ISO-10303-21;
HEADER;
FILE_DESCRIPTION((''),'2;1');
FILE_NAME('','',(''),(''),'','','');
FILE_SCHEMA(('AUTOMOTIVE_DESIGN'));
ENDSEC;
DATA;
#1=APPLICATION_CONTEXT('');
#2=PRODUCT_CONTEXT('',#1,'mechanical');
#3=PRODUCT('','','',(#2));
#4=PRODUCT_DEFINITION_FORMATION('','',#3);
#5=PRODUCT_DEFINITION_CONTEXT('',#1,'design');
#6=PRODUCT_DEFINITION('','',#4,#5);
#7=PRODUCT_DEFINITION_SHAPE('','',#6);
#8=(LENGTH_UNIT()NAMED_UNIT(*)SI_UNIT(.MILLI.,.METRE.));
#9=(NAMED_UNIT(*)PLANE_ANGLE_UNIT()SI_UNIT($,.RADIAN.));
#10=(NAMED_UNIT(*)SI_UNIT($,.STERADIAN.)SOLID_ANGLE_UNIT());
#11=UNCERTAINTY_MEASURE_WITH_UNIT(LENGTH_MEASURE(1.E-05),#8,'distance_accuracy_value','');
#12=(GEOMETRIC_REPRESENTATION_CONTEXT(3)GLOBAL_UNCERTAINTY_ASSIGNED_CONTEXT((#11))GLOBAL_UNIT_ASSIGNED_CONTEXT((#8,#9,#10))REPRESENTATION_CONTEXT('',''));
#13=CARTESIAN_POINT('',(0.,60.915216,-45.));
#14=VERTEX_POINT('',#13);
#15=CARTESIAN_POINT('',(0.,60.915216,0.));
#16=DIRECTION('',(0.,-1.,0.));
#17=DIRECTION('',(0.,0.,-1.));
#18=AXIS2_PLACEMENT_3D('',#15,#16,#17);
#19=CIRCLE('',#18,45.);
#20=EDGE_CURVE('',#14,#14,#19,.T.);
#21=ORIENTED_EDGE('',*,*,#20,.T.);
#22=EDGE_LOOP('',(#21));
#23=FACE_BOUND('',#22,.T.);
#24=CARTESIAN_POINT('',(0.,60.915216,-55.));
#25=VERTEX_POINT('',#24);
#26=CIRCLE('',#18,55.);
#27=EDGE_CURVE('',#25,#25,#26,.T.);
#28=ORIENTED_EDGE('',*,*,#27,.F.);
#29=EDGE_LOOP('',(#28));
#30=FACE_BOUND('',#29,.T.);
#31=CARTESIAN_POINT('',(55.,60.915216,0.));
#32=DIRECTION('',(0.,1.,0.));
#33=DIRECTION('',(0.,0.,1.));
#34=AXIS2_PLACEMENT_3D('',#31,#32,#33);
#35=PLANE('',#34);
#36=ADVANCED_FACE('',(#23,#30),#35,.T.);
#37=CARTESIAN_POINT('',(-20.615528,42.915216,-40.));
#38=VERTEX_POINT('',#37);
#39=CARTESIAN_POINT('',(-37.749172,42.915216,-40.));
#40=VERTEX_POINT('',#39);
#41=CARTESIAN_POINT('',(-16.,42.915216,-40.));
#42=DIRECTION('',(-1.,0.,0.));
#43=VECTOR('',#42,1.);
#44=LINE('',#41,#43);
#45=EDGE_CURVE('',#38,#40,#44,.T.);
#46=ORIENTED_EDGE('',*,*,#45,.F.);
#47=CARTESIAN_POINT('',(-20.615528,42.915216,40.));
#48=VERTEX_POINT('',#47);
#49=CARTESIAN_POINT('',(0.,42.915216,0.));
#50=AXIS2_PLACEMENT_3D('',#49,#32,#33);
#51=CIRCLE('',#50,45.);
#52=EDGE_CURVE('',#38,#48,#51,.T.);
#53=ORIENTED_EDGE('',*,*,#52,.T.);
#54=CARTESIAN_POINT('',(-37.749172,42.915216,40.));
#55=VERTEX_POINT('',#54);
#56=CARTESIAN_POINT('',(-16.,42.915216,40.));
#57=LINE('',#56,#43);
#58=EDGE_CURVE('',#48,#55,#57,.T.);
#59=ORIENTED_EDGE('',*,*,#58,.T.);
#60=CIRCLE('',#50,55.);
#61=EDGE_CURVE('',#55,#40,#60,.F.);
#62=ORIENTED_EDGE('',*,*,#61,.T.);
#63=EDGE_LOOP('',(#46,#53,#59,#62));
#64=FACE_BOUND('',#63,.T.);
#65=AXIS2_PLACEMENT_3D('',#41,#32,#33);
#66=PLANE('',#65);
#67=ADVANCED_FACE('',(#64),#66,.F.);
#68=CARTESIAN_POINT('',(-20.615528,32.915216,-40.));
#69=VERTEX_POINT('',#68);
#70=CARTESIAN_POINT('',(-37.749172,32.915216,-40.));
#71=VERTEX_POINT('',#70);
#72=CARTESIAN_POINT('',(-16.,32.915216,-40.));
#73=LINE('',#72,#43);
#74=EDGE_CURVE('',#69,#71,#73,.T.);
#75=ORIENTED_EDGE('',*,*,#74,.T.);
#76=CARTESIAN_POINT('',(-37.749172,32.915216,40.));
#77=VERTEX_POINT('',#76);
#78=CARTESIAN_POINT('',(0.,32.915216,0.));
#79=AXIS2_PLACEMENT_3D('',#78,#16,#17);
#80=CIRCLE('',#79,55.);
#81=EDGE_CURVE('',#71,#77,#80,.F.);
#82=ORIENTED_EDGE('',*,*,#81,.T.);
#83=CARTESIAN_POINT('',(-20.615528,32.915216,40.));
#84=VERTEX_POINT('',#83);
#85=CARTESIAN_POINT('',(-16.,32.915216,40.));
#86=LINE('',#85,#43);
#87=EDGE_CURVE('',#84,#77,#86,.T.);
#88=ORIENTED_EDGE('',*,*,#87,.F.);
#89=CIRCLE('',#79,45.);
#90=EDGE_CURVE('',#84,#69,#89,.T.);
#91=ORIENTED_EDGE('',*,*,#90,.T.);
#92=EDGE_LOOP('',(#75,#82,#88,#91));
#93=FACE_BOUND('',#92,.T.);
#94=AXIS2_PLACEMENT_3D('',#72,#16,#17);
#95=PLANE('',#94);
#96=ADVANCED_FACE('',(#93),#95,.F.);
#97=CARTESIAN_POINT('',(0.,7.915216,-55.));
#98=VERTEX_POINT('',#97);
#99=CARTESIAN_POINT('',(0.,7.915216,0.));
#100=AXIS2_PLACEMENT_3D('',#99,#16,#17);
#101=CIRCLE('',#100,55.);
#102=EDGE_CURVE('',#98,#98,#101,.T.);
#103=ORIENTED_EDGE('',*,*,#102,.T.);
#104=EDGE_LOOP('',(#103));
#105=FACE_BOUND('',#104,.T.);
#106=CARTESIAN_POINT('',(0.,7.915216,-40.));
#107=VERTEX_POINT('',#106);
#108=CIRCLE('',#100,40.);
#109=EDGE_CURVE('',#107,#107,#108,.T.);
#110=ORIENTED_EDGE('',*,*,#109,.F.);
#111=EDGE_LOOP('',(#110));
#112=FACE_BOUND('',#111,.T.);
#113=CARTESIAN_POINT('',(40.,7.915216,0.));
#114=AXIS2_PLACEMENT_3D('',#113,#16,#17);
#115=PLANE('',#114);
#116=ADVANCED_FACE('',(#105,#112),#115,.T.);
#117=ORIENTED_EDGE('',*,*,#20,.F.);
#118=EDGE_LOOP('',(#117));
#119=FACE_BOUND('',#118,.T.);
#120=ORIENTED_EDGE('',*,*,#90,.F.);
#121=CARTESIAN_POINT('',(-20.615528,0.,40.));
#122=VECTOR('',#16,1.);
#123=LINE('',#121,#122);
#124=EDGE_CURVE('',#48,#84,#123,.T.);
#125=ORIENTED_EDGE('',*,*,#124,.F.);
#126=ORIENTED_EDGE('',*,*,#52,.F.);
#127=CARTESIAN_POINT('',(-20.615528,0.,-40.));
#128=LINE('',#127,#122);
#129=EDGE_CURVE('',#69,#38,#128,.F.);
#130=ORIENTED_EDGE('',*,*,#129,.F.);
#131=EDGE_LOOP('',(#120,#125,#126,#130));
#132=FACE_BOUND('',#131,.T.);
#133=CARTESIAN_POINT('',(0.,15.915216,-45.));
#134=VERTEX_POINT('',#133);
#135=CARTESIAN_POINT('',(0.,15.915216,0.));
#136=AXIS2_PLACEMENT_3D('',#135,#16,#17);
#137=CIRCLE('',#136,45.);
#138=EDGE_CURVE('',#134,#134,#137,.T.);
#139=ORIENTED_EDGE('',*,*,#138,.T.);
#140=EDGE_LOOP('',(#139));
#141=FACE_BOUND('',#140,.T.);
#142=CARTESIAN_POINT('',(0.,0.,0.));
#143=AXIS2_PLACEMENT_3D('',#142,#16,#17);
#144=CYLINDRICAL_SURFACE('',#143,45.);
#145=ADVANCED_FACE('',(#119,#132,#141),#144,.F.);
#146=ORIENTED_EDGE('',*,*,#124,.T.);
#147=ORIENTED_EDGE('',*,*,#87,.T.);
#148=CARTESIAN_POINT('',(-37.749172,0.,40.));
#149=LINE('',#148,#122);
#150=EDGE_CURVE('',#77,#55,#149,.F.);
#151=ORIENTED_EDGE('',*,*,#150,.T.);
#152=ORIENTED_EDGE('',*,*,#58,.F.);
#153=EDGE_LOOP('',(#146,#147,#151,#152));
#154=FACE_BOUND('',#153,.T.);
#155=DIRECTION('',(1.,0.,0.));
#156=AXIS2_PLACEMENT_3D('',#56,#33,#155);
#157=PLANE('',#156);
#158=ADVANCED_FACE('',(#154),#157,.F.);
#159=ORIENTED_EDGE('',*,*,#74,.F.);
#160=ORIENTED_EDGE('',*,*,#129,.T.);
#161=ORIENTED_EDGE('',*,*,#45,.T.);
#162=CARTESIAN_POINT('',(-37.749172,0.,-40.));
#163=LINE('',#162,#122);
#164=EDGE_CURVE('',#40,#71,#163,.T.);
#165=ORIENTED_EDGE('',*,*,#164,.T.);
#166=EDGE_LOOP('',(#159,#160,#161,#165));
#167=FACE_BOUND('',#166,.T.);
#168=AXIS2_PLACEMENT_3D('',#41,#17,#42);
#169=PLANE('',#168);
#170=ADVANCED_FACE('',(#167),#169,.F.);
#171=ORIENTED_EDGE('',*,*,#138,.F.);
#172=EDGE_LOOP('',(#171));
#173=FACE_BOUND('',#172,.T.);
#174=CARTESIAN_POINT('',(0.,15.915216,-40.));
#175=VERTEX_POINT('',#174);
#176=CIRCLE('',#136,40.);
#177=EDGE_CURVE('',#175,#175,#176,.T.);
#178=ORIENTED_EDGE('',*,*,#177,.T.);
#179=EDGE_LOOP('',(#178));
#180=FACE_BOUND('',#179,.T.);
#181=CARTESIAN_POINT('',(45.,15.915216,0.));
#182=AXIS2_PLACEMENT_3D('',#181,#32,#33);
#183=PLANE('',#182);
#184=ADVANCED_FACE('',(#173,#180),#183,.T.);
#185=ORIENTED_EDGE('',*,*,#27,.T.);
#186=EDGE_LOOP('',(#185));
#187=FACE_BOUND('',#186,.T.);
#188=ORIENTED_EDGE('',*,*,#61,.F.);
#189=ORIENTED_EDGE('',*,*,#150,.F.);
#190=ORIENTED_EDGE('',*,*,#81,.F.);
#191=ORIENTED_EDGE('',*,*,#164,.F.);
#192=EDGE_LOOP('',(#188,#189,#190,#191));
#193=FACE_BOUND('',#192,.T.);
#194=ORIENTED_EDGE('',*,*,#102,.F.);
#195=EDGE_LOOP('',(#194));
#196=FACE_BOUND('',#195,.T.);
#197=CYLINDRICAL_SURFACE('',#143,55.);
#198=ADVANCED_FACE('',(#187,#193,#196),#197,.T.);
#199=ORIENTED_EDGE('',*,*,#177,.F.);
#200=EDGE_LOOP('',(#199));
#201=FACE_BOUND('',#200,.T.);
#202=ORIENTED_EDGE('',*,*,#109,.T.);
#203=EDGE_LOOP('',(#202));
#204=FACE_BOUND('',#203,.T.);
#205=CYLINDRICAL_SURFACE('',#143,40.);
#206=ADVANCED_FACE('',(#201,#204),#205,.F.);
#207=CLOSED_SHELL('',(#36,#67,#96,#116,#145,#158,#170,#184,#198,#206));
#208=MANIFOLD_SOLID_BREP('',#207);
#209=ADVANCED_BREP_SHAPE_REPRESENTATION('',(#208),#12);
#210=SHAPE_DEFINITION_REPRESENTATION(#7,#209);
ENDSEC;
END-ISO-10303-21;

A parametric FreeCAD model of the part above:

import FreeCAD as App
import Part
import Sketcher
Q = App.Units.Quantity


def add_polygon(sketch, points):
    """Adds a closed chain of lines whose ends are joined by coincident constraints."""
    first, n = sketch.GeometryCount, len(points)
    for a, b in zip(points, points[1:] + points[:1]):
        sketch.addGeometry(Part.LineSegment(App.Vector(*a, 0), App.Vector(*b, 0)), False)
    for i in range(n):
        sketch.addConstraint(Sketcher.Constraint("Coincident", first + i, 2, first + (i + 1) % n, 1))

doc = App.newDocument("Part")
body = doc.addObject("PartDesign::Body", "Body")

# Sketch on XY plane
sketch1 = body.newObject("Sketcher::SketchObject", "Sketch")
sketch1.AttachmentSupport = (doc.getObject("XY_Plane"), [""])
sketch1.MapMode = "FlatFace"
add_polygon(sketch1, [(40, 8), (55, 8), (55, 61), (45, 61), (45, 16), (40, 16)])  # lines 0-5
sketch1.addConstraint([
    Sketcher.Constraint("Horizontal", 0),
    Sketcher.Constraint("Vertical", 1),
    Sketcher.Constraint("Horizontal", 2),
    Sketcher.Constraint("Vertical", 3),
    Sketcher.Constraint("Horizontal", 4),
    Sketcher.Constraint("Vertical", 5),
    Sketcher.Constraint("DistanceX", 0, 1, 0, 2, Q("15 mm")),
    Sketcher.Constraint("DistanceX", 2, 2, 2, 1, Q("10 mm")),
    Sketcher.Constraint("DistanceY", 1, 1, 1, 2, Q("53 mm")),
    Sketcher.Constraint("DistanceY", 3, 2, 3, 1, Q("45 mm")),
    Sketcher.Constraint("DistanceX", -1, 1, 0, 2, Q("55 mm")),
    Sketcher.Constraint("DistanceY", -1, 1, 0, 2, Q("7.915216 mm")),
])
revolution = body.newObject("PartDesign::Revolution", "Revolution")
revolution.Profile = sketch1
revolution.ReferenceAxis = (sketch1, ["V_Axis"])
revolution.Angle = 360

# Sketch on YZ plane
sketch2 = body.newObject("Sketcher::SketchObject", "Sketch001")
sketch2.AttachmentSupport = (doc.getObject("YZ_Plane"), [""])
sketch2.MapMode = "FlatFace"
sketch2.AttachmentOffset = App.Placement(App.Vector(0, 0, -55), App.Rotation())
add_polygon(sketch2, [(43, -40), (33, -40), (33, 40), (43, 40)])  # lines 0-3
sketch2.addConstraint([
    Sketcher.Constraint("Horizontal", 0),
    Sketcher.Constraint("Vertical", 1),
    Sketcher.Constraint("Horizontal", 2),
    Sketcher.Constraint("Vertical", 3),
    Sketcher.Constraint("DistanceX", 0, 2, 0, 1, Q("10 mm")),
    Sketcher.Constraint("DistanceY", 1, 1, 1, 2, Q("80 mm")),
    Sketcher.Constraint("DistanceY", 0, 2, -1, 1, Q("40 mm")),
    Sketcher.Constraint("DistanceX", -1, 1, 0, 2, Q("32.915216 mm")),
])
pocket1 = body.newObject("PartDesign::Pocket", "Pocket")
pocket1.Profile = sketch2
pocket1.Length = 39
pocket1.Reversed = True

doc.recompute()
